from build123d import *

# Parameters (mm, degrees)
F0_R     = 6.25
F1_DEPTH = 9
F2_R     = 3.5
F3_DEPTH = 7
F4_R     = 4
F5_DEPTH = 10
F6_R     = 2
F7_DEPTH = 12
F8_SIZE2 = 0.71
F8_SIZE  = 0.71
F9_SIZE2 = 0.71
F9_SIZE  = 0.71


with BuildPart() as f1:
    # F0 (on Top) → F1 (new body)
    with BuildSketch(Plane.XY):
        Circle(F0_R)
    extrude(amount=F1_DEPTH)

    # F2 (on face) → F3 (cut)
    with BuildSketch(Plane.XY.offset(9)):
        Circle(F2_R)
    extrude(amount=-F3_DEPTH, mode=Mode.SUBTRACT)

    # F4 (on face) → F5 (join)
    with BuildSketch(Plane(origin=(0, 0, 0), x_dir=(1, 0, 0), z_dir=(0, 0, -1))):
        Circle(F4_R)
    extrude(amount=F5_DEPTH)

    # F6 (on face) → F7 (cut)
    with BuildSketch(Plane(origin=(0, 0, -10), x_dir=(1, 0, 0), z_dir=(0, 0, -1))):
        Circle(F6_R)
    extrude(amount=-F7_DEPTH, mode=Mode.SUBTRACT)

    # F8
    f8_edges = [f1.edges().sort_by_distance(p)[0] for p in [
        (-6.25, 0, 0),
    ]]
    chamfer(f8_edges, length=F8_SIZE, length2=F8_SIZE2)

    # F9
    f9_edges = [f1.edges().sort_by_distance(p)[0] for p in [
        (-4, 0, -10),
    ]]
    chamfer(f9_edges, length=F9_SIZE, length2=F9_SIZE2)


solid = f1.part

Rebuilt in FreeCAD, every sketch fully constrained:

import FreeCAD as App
import Part
import Sketcher
Q = App.Units.Quantity


def edges_at(feature, points):
    """Names of the edges that pass closest to the given points."""
    edges = feature.Shape.Edges
    near = lambda p: min(range(len(edges)), key=lambda i: edges[i].distToShape(Part.Vertex(*p))[0])
    return sorted({f"Edge{near(p) + 1}" for p in points})

doc = App.newDocument("Part")
body = doc.addObject("PartDesign::Body", "Body")

# Sketch on XY plane
sketch1 = doc.addObject("Sketcher::SketchObject", "Sketch")
body.addObject(sketch1)
sketch1.AttachmentSupport = (doc.XY_Plane, [""])
sketch1.MapMode = "FlatFace"
sketch1.addGeometry(Part.Circle(App.Vector(0, 0, 0), App.Vector(0, 0, 1), 6), False)
sketch1.addConstraint(Sketcher.Constraint("Coincident", 0, 3, -1, 1))
sketch1.addConstraint(Sketcher.Constraint("Diameter", 0, Q("12.5 mm")))
pad1 = doc.addObject("PartDesign::Pad", "Pad")
body.addObject(pad1)
pad1.Profile = sketch1
pad1.Length = 9

# Sketch on XY plane
sketch2 = doc.addObject("Sketcher::SketchObject", "Sketch001")
body.addObject(sketch2)
sketch2.AttachmentSupport = (doc.XY_Plane, [""])
sketch2.MapMode = "FlatFace"
sketch2.AttachmentOffset = App.Placement(App.Vector(0, 0, 9), App.Rotation())
sketch2.addGeometry(Part.Circle(App.Vector(0, 0, 0), App.Vector(0, 0, 1), 3.5), False)
sketch2.addConstraint(Sketcher.Constraint("Coincident", 0, 3, -1, 1))
sketch2.addConstraint(Sketcher.Constraint("Diameter", 0, Q("7 mm")))
pocket1 = doc.addObject("PartDesign::Pocket", "Pocket")
body.addObject(pocket1)
pocket1.Profile = sketch2
pocket1.Length = 7

# Sketch on XY plane
sketch3 = doc.addObject("Sketcher::SketchObject", "Sketch002")
body.addObject(sketch3)
sketch3.AttachmentSupport = (doc.XY_Plane, [""])
sketch3.MapMode = "FlatFace"
sketch3.addGeometry(Part.Circle(App.Vector(0, 0, 0), App.Vector(0, 0, 1), 4), False)
sketch3.addConstraint(Sketcher.Constraint("Coincident", 0, 3, -1, 1))
sketch3.addConstraint(Sketcher.Constraint("Diameter", 0, Q("8 mm")))
pad2 = doc.addObject("PartDesign::Pad", "Pad001")
body.addObject(pad2)
pad2.Profile = sketch3
pad2.Length = 10
pad2.Reversed = True

# Sketch on XY plane
sketch4 = doc.addObject("Sketcher::SketchObject", "Sketch003")
body.addObject(sketch4)
sketch4.AttachmentSupport = (doc.XY_Plane, [""])
sketch4.MapMode = "FlatFace"
sketch4.AttachmentOffset = App.Placement(App.Vector(0, 0, -10), App.Rotation())
sketch4.addGeometry(Part.Circle(App.Vector(0, 0, 0), App.Vector(0, 0, 1), 2), False)
sketch4.addConstraint(Sketcher.Constraint("Coincident", 0, 3, -1, 1))
sketch4.addConstraint(Sketcher.Constraint("Diameter", 0, Q("4 mm")))
pocket2 = doc.addObject("PartDesign::Pocket", "Pocket001")
body.addObject(pocket2)
pocket2.Profile = sketch4
pocket2.Length = 12
pocket2.Reversed = True
doc.recompute()

chamfer = doc.addObject("PartDesign::Chamfer", "Chamfer")
body.addObject(chamfer)
chamfer.Base = (pocket2, edges_at(pocket2, [(-6.25, 0, 0)]))
chamfer.ChamferType = "Two distances"
chamfer.Size = 0.71
chamfer.Size2 = 0.71
doc.recompute()

chamfer2 = doc.addObject("PartDesign::Chamfer", "Chamfer001")
body.addObject(chamfer2)
chamfer2.Base = (chamfer, edges_at(chamfer, [(-4, 0, -10)]))
chamfer2.ChamferType = "Two distances"
chamfer2.Size = 0.71
chamfer2.Size2 = 0.71

doc.recompute()
